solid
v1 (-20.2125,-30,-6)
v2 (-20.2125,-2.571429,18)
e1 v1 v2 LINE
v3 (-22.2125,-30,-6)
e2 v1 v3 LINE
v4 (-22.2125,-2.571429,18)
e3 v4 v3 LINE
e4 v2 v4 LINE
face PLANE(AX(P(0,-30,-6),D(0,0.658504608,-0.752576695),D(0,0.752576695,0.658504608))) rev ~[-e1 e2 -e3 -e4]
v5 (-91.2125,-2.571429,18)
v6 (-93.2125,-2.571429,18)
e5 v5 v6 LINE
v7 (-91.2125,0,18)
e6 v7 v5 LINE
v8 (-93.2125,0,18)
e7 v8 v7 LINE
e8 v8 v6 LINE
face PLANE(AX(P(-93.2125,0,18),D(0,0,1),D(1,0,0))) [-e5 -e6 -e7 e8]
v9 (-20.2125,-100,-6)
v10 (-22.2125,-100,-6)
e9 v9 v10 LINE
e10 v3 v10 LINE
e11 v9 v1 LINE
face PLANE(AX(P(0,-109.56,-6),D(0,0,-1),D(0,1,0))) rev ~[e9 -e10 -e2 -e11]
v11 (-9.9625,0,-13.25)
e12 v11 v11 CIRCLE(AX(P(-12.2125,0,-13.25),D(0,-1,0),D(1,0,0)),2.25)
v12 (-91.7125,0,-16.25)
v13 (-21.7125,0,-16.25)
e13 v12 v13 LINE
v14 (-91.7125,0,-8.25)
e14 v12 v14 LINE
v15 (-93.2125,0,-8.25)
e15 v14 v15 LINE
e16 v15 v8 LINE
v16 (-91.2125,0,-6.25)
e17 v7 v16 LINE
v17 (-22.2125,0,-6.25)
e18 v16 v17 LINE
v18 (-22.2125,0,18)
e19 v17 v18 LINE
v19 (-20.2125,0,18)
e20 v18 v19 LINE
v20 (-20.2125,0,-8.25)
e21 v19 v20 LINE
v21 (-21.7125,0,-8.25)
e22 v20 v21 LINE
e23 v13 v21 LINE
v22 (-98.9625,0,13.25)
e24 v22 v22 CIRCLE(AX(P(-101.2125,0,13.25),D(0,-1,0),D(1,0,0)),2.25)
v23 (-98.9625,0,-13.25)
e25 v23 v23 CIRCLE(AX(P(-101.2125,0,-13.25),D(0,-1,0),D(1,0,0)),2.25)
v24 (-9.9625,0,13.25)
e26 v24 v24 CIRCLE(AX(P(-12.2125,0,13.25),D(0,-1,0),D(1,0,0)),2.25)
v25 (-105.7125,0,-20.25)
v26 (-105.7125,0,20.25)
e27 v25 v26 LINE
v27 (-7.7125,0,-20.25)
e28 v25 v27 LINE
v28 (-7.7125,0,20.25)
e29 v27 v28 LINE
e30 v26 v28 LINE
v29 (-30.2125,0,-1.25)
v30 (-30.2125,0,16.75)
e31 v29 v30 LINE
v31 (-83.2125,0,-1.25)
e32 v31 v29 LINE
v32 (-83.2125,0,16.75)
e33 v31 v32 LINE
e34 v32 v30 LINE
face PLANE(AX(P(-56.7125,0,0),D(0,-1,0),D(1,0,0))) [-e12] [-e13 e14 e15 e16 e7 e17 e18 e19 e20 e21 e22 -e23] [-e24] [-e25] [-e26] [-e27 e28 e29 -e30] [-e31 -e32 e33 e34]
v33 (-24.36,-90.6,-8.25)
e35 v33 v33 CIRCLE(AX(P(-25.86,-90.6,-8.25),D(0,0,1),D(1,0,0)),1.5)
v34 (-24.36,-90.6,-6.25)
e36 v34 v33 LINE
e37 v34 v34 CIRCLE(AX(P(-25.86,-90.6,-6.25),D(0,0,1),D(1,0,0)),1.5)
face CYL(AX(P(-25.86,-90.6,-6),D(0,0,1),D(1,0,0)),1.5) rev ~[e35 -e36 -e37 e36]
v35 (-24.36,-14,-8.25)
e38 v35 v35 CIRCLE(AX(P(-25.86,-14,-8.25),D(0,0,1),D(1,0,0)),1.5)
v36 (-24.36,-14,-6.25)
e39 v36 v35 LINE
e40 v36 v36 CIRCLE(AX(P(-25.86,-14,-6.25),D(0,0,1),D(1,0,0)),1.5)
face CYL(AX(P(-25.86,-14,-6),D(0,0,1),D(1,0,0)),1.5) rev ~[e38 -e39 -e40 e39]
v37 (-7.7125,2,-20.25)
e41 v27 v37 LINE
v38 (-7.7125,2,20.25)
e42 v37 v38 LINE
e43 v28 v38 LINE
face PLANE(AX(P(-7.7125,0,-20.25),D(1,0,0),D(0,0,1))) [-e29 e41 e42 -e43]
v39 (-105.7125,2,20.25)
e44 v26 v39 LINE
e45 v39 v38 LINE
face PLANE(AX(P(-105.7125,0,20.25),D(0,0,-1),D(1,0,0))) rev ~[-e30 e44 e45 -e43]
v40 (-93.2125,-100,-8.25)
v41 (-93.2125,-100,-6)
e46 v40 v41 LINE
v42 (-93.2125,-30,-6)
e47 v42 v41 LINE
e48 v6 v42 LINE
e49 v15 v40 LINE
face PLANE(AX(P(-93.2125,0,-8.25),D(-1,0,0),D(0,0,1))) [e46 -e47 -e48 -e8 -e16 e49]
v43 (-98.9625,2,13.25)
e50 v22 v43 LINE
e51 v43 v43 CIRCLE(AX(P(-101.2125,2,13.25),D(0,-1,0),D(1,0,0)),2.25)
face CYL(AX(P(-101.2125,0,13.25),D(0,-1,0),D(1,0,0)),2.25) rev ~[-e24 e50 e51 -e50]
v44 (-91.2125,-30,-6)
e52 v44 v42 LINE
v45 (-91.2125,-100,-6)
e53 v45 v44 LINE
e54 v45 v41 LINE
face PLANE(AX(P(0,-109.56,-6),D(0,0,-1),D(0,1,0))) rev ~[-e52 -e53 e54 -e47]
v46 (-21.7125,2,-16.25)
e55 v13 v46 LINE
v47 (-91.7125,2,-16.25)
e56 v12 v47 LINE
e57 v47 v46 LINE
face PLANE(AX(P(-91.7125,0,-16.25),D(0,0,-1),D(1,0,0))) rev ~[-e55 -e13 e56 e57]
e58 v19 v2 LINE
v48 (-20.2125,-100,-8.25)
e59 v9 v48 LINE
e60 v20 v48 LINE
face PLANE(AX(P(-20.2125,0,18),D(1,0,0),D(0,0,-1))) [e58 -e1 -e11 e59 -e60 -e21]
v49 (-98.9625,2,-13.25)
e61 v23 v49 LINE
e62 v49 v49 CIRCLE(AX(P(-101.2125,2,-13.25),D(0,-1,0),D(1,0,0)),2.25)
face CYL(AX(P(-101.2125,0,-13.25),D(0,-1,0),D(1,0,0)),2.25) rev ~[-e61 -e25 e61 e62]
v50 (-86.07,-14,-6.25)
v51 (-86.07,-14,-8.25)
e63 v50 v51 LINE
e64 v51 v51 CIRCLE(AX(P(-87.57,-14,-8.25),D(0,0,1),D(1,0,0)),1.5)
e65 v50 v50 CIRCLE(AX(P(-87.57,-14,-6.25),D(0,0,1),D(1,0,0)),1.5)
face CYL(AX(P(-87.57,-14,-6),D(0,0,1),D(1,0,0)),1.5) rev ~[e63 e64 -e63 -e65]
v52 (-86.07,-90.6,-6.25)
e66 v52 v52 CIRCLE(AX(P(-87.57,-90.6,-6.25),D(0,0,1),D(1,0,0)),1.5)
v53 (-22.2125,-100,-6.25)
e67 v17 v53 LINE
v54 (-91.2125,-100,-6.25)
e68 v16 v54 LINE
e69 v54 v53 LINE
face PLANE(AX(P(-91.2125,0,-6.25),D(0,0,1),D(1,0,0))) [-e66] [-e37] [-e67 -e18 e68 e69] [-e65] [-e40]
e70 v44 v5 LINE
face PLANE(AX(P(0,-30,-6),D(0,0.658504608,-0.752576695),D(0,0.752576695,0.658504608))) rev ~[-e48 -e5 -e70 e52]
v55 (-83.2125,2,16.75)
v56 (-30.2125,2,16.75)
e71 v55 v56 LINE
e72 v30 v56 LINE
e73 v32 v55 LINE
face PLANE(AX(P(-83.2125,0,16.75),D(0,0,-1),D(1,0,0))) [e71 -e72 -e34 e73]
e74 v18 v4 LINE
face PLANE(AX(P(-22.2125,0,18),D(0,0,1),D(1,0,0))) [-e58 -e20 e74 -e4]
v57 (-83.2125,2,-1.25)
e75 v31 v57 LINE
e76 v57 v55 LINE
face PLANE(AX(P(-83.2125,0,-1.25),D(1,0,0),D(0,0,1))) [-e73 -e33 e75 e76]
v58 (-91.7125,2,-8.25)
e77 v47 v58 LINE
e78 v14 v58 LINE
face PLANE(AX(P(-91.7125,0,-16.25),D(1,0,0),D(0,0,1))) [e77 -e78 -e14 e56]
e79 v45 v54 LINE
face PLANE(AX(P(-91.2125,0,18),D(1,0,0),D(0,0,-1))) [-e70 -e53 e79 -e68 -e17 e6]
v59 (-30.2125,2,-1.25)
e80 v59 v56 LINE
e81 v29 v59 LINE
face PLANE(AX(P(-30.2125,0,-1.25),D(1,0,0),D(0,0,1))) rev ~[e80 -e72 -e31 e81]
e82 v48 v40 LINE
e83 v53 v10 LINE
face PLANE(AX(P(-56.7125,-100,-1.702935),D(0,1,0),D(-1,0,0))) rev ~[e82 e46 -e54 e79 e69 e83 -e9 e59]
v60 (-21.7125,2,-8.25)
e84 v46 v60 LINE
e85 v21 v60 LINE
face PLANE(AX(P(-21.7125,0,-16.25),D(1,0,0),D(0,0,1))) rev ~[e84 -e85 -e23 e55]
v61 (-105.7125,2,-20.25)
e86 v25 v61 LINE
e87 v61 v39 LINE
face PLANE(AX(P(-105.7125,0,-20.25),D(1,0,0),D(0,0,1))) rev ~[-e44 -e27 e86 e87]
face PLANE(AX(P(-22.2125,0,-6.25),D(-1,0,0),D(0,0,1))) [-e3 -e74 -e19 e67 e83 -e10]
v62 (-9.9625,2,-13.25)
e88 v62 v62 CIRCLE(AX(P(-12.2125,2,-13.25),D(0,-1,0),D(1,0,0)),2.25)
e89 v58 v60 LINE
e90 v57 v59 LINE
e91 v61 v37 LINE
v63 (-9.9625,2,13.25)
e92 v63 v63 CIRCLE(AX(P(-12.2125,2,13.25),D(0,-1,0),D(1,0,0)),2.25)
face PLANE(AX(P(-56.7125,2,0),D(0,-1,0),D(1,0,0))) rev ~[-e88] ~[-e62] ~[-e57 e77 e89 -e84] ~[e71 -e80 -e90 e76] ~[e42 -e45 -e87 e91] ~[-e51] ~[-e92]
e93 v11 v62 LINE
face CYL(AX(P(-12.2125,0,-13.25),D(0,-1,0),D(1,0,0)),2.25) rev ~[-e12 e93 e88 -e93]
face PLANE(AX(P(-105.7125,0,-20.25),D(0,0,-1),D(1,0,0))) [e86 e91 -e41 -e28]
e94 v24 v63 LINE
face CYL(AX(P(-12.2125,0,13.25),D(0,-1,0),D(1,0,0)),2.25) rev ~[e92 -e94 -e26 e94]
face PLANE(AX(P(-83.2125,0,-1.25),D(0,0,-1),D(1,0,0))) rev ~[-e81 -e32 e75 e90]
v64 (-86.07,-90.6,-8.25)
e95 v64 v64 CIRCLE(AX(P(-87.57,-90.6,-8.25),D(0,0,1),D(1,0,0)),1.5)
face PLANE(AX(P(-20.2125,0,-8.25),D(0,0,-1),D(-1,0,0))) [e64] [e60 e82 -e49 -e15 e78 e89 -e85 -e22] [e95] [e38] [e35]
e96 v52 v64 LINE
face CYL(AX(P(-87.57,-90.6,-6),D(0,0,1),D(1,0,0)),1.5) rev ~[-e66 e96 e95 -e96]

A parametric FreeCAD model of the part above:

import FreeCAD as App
import Part
import Sketcher
from FreeCAD import Vector

doc = App.newDocument("Part")
body = doc.addObject("PartDesign::Body", "Body")

# Sketch on XZ plane
sketch1 = body.newObject("Sketcher::SketchObject", "Sketch")
sketch1.AttachmentSupport = (doc.getObject("XZ_Plane"), [""])
sketch1.MapMode = "FlatFace"
sketch1.addGeometry(Part.LineSegment(Vector(-105.7, 20.2, 0), Vector(-105.7, -20.2, 0)), False)
sketch1.addGeometry(Part.LineSegment(Vector(-105.7, -20.2, 0), Vector(-7.7, -20.2, 0)), False)
sketch1.addGeometry(Part.LineSegment(Vector(-7.7, -20.2, 0), Vector(-7.7, 20.2, 0)), False)
sketch1.addGeometry(Part.LineSegment(Vector(-7.7, 20.2, 0), Vector(-105.7, 20.2, 0)), False)
sketch1.addGeometry(Part.Circle(Vector(-101.2, -13.2, 0), Vector(0, 0, 1), 2.2), False)
sketch1.addGeometry(Part.LineSegment(Vector(-21.7, -16.2, 0), Vector(-91.7, -16.2, 0)), False)
sketch1.addGeometry(Part.LineSegment(Vector(-91.7, -16.2, 0), Vector(-91.7, -8.2, 0)), False)
sketch1.addGeometry(Part.LineSegment(Vector(-91.7, -8.2, 0), Vector(-21.7, -8.2, 0)), False)
sketch1.addGeometry(Part.LineSegment(Vector(-21.7, -8.2, 0), Vector(-21.7, -16.2, 0)), False)
sketch1.addGeometry(Part.Circle(Vector(-12.2, -13.2, 0), Vector(0, 0, 1), 2.2), False)
sketch1.addGeometry(Part.Circle(Vector(-101.2, 13.2, 0), Vector(0, 0, 1), 2.2), False)
sketch1.addGeometry(Part.LineSegment(Vector(-30.2, -1.2, 0), Vector(-83.2, -1.2, 0)), False)
sketch1.addGeometry(Part.LineSegment(Vector(-83.2, -1.2, 0), Vector(-83.2, 16.8, 0)), False)
sketch1.addGeometry(Part.LineSegment(Vector(-83.2, 16.8, 0), Vector(-30.2, 16.8, 0)), False)
sketch1.addGeometry(Part.LineSegment(Vector(-30.2, 16.8, 0), Vector(-30.2, -1.2, 0)), False)
sketch1.addGeometry(Part.Circle(Vector(-12.2, 13.2, 0), Vector(0, 0, 1), 2.2), False)
sketch1.addConstraint(Sketcher.Constraint("Coincident", 0, 2, 1, 1))
sketch1.addConstraint(Sketcher.Constraint("Coincident", 1, 2, 2, 1))
sketch1.addConstraint(Sketcher.Constraint("Coincident", 2, 2, 3, 1))
sketch1.addConstraint(Sketcher.Constraint("Coincident", 3, 2, 0, 1))
sketch1.addConstraint(Sketcher.Constraint("Coincident", 5, 2, 6, 1))
sketch1.addConstraint(Sketcher.Constraint("Coincident", 6, 2, 7, 1))
sketch1.addConstraint(Sketcher.Constraint("Coincident", 7, 2, 8, 1))
sketch1.addConstraint(Sketcher.Constraint("Coincident", 8, 2, 5, 1))
sketch1.addConstraint(Sketcher.Constraint("Coincident", 11, 2, 12, 1))
sketch1.addConstraint(Sketcher.Constraint("Coincident", 12, 2, 13, 1))
sketch1.addConstraint(Sketcher.Constraint("Coincident", 13, 2, 14, 1))
sketch1.addConstraint(Sketcher.Constraint("Coincident", 14, 2, 11, 1))
sketch1.addConstraint(Sketcher.Constraint("Vertical", 0))
sketch1.addConstraint(Sketcher.Constraint("Horizontal", 1))
sketch1.addConstraint(Sketcher.Constraint("Vertical", 2))
sketch1.addConstraint(Sketcher.Constraint("Horizontal", 3))
sketch1.addConstraint(Sketcher.Constraint("Horizontal", 5))
sketch1.addConstraint(Sketcher.Constraint("Vertical", 6))
sketch1.addConstraint(Sketcher.Constraint("Horizontal", 7))
sketch1.addConstraint(Sketcher.Constraint("Vertical", 8))
sketch1.addConstraint(Sketcher.Constraint("Horizontal", 11))
sketch1.addConstraint(Sketcher.Constraint("Vertical", 12))
sketch1.addConstraint(Sketcher.Constraint("Horizontal", 13))
sketch1.addConstraint(Sketcher.Constraint("Vertical", 14))
sketch1.addConstraint(Sketcher.Constraint("Equal", 4, 9))
sketch1.addConstraint(Sketcher.Constraint("Equal", 9, 10))
sketch1.addConstraint(Sketcher.Constraint("Equal", 10, 15))
sketch1.addConstraint(Sketcher.Constraint("Symmetric", 4, 3, 10, 3, -1))
sketch1.addConstraint(Sketcher.Constraint("Symmetric", 9, 3, 15, 3, -1))
sketch1.addConstraint(Sketcher.Constraint("Horizontal", 4, 3, 9, 3))
sketch1.addConstraint(Sketcher.Constraint("Diameter", 4, 4.5))
sketch1.addConstraint(Sketcher.Constraint("DistanceX", 1, 1, 1, 2, 98.0))
sketch1.addConstraint(Sketcher.Constraint("DistanceX", 5, 2, 5, 1, 70.0))
sketch1.addConstraint(Sketcher.Constraint("DistanceX", 11, 2, 11, 1, 53.0))
sketch1.addConstraint(Sketcher.Constraint("DistanceY", 6, 1, 6, 2, 8.0))
sketch1.addConstraint(Sketcher.Constraint("DistanceY", 12, 1, 12, 2, 18.0))
sketch1.addConstraint(Sketcher.Constraint("DistanceY", 0, 2, 0, 1, 40.5))
sketch1.addConstraint(Sketcher.Constraint("DistanceX", 4, 3, 9, 3, 89.0))
sketch1.addConstraint(Sketcher.Constraint("DistanceY", 0, 2, 4, 3, 7.0))
sketch1.addConstraint(Sketcher.Constraint("DistanceY", 15, 3, 2, 2, 7.0))
sketch1.addConstraint(Sketcher.Constraint("DistanceY", 5, 2, 4, 3, 3.0))
sketch1.addConstraint(Sketcher.Constraint("DistanceX", 0, 2, 5, 2, 14.0))
sketch1.addConstraint(Sketcher.Constraint("DistanceY", 6, 2, 11, 2, 7.0))
sketch1.addConstraint(Sketcher.Constraint("DistanceX", 4, 3, 11, 2, 18.0))
sketch1.addConstraint(Sketcher.Constraint("DistanceX", 0, 2, 4, 3, 4.5))
sketch1.addConstraint(Sketcher.Constraint("DistanceX", 4, 3, -1, 1, 101.2125))
pad1 = body.newObject("PartDesign::Pad", "Pad")
pad1.Profile = sketch1
pad1.Length = 2
pad1.Reversed = True

# Sketch on XZ plane
sketch2 = body.newObject("Sketcher::SketchObject", "Sketch001")
sketch2.AttachmentSupport = (doc.getObject("XZ_Plane"), [""])
sketch2.MapMode = "FlatFace"
sketch2.addGeometry(Part.LineSegment(Vector(-20.2, -8.2, 0), Vector(-20.2, 18, 0)), False)
sketch2.addGeometry(Part.LineSegment(Vector(-20.2, 18, 0), Vector(-22.2, 18, 0)), False)
sketch2.addGeometry(Part.LineSegment(Vector(-22.2, 18, 0), Vector(-22.2, -6.2, 0)), False)
sketch2.addGeometry(Part.LineSegment(Vector(-22.2, -6.2, 0), Vector(-91.2, -6.2, 0)), False)
sketch2.addGeometry(Part.LineSegment(Vector(-91.2, -6.2, 0), Vector(-91.2, 18, 0)), False)
sketch2.addGeometry(Part.LineSegment(Vector(-91.2, 18, 0), Vector(-93.2, 18, 0)), False)
sketch2.addGeometry(Part.LineSegment(Vector(-93.2, 18, 0), Vector(-93.2, -8.2, 0)), False)
sketch2.addGeometry(Part.LineSegment(Vector(-93.2, -8.2, 0), Vector(-20.2, -8.2, 0)), False)
sketch2.addConstraint(Sketcher.Constraint("Coincident", 0, 2, 1, 1))
sketch2.addConstraint(Sketcher.Constraint("Coincident", 1, 2, 2, 1))
sketch2.addConstraint(Sketcher.Constraint("Coincident", 2, 2, 3, 1))
sketch2.addConstraint(Sketcher.Constraint("Coincident", 3, 2, 4, 1))
sketch2.addConstraint(Sketcher.Constraint("Coincident", 4, 2, 5, 1))
sketch2.addConstraint(Sketcher.Constraint("Coincident", 5, 2, 6, 1))
sketch2.addConstraint(Sketcher.Constraint("Coincident", 6, 2, 7, 1))
sketch2.addConstraint(Sketcher.Constraint("Coincident", 7, 2, 0, 1))
sketch2.addConstraint(Sketcher.Constraint("Vertical", 0))
sketch2.addConstraint(Sketcher.Constraint("Horizontal", 1))
sketch2.addConstraint(Sketcher.Constraint("Vertical", 2))
sketch2.addConstraint(Sketcher.Constraint("Horizontal", 3))
sketch2.addConstraint(Sketcher.Constraint("Vertical", 4))
sketch2.addConstraint(Sketcher.Constraint("Horizontal", 5))
sketch2.addConstraint(Sketcher.Constraint("Vertical", 6))
sketch2.addConstraint(Sketcher.Constraint("Horizontal", 7))
sketch2.addConstraint(Sketcher.Constraint("Horizontal", 1, 2, 4, 2))
sketch2.addConstraint(Sketcher.Constraint("Equal", 1, 5))
sketch2.addConstraint(Sketcher.Constraint("DistanceX", 1, 2, 1, 1, 2.0))
sketch2.addConstraint(Sketcher.Constraint("DistanceX", 3, 2, 3, 1, 69.0))
sketch2.addConstraint(Sketcher.Constraint("DistanceY", -1, 1, 0, 2, 18.0))
sketch2.addConstraint(Sketcher.Constraint("DistanceY", 6, 2, 3, 2, 2.0))
sketch2.addConstraint(Sketcher.Constraint("DistanceY", 0, 1, 0, 2, 26.25))
sketch2.addConstraint(Sketcher.Constraint("DistanceX", 0, 2, -1, 1, 20.2125))
pad2 = body.newObject("PartDesign::Pad", "Pad001")
pad2.Profile = sketch2
pad2.Length = 100

# Sketch on XY plane
sketch3 = body.newObject("Sketcher::SketchObject", "Sketch002")
sketch3.AttachmentSupport = (doc.getObject("XY_Plane"), [""])
sketch3.MapMode = "FlatFace"
sketch3.AttachmentOffset = App.Placement(Vector(0, 0, -6), App.Rotation())
sketch3.addGeometry(Part.Circle(Vector(-87.6, -14, 0), Vector(0, 0, 1), 1.5), False)
sketch3.addGeometry(Part.Circle(Vector(-25.9, -14, 0), Vector(0, 0, 1), 1.5), False)
sketch3.addGeometry(Part.Circle(Vector(-87.6, -90.6, 0), Vector(0, 0, 1), 1.5), False)
sketch3.addGeometry(Part.Circle(Vector(-25.9, -90.6, 0), Vector(0, 0, 1), 1.5), False)
sketch3.addConstraint(Sketcher.Constraint("Equal", 0, 1))
sketch3.addConstraint(Sketcher.Constraint("Equal", 1, 2))
sketch3.addConstraint(Sketcher.Constraint("Equal", 2, 3))
sketch3.addConstraint(Sketcher.Constraint("Horizontal", 0, 3, 1, 3))
sketch3.addConstraint(Sketcher.Constraint("Horizontal", 2, 3, 3, 3))
sketch3.addConstraint(Sketcher.Constraint("Vertical", 0, 3, 2, 3))
sketch3.addConstraint(Sketcher.Constraint("Vertical", 1, 3, 3, 3))
sketch3.addConstraint(Sketcher.Constraint("Diameter", 0, 3.0))
sketch3.addConstraint(Sketcher.Constraint("DistanceY", 0, 3, -1, 1, 14.0))
sketch3.addConstraint(Sketcher.Constraint("DistanceY", 2, 3, -1, 1, 90.6))
sketch3.addConstraint(Sketcher.Constraint("DistanceX", 0, 3, -1, 1, 87.57))
sketch3.addConstraint(Sketcher.Constraint("DistanceX", 1, 3, -1, 1, 25.86))
pocket1 = body.newObject("PartDesign::Pocket", "Pocket")
pocket1.Profile = sketch3
pocket1.Length = 5

# Sketch on YZ plane
sketch4 = body.newObject("Sketcher::SketchObject", "Sketch003")
sketch4.AttachmentSupport = (doc.getObject("YZ_Plane"), [""])
sketch4.MapMode = "FlatFace"
sketch4.addGeometry(Part.LineSegment(Vector(-110, -6, 0), Vector(-30, -6, 0)), False)
sketch4.addGeometry(Part.LineSegment(Vector(-30, -6, 0), Vector(0, 20, 0)), False)
sketch4.addGeometry(Part.LineSegment(Vector(0, 20, 0), Vector(-110, 20, 0)), False)
sketch4.addGeometry(Part.LineSegment(Vector(-110, 20, 0), Vector(-110, -6, 0)), False)
sketch4.addConstraint(Sketcher.Constraint("Coincident", 0, 2, 1, 1))
sketch4.addConstraint(Sketcher.Constraint("Coincident", 1, 2, 2, 1))
sketch4.addConstraint(Sketcher.Constraint("Coincident", 2, 2, 3, 1))
sketch4.addConstraint(Sketcher.Constraint("Coincident", 3, 2, 0, 1))
sketch4.addConstraint(Sketcher.Constraint("Horizontal", 0))
sketch4.addConstraint(Sketcher.Constraint("Horizontal", 2))
sketch4.addConstraint(Sketcher.Constraint("Vertical", 3))
sketch4.addConstraint(Sketcher.Constraint("PointOnObject", 1, 2, -2))
sketch4.addConstraint(Sketcher.Constraint("DistanceX", 0, 2, -1, 1, 30.0))
sketch4.addConstraint(Sketcher.Constraint("DistanceY", 0, 2, -1, 1, 6.0))
sketch4.addConstraint(Sketcher.Constraint("DistanceX", 0, 1, 0, 2, 79.56))
sketch4.addConstraint(Sketcher.Constraint("DistanceY", 3, 2, 3, 1, 26.25))
pocket2 = body.newObject("PartDesign::Pocket", "Pocket001")
pocket2.Profile = sketch4
pocket2.Type = "ThroughAll"

doc.recompute()
